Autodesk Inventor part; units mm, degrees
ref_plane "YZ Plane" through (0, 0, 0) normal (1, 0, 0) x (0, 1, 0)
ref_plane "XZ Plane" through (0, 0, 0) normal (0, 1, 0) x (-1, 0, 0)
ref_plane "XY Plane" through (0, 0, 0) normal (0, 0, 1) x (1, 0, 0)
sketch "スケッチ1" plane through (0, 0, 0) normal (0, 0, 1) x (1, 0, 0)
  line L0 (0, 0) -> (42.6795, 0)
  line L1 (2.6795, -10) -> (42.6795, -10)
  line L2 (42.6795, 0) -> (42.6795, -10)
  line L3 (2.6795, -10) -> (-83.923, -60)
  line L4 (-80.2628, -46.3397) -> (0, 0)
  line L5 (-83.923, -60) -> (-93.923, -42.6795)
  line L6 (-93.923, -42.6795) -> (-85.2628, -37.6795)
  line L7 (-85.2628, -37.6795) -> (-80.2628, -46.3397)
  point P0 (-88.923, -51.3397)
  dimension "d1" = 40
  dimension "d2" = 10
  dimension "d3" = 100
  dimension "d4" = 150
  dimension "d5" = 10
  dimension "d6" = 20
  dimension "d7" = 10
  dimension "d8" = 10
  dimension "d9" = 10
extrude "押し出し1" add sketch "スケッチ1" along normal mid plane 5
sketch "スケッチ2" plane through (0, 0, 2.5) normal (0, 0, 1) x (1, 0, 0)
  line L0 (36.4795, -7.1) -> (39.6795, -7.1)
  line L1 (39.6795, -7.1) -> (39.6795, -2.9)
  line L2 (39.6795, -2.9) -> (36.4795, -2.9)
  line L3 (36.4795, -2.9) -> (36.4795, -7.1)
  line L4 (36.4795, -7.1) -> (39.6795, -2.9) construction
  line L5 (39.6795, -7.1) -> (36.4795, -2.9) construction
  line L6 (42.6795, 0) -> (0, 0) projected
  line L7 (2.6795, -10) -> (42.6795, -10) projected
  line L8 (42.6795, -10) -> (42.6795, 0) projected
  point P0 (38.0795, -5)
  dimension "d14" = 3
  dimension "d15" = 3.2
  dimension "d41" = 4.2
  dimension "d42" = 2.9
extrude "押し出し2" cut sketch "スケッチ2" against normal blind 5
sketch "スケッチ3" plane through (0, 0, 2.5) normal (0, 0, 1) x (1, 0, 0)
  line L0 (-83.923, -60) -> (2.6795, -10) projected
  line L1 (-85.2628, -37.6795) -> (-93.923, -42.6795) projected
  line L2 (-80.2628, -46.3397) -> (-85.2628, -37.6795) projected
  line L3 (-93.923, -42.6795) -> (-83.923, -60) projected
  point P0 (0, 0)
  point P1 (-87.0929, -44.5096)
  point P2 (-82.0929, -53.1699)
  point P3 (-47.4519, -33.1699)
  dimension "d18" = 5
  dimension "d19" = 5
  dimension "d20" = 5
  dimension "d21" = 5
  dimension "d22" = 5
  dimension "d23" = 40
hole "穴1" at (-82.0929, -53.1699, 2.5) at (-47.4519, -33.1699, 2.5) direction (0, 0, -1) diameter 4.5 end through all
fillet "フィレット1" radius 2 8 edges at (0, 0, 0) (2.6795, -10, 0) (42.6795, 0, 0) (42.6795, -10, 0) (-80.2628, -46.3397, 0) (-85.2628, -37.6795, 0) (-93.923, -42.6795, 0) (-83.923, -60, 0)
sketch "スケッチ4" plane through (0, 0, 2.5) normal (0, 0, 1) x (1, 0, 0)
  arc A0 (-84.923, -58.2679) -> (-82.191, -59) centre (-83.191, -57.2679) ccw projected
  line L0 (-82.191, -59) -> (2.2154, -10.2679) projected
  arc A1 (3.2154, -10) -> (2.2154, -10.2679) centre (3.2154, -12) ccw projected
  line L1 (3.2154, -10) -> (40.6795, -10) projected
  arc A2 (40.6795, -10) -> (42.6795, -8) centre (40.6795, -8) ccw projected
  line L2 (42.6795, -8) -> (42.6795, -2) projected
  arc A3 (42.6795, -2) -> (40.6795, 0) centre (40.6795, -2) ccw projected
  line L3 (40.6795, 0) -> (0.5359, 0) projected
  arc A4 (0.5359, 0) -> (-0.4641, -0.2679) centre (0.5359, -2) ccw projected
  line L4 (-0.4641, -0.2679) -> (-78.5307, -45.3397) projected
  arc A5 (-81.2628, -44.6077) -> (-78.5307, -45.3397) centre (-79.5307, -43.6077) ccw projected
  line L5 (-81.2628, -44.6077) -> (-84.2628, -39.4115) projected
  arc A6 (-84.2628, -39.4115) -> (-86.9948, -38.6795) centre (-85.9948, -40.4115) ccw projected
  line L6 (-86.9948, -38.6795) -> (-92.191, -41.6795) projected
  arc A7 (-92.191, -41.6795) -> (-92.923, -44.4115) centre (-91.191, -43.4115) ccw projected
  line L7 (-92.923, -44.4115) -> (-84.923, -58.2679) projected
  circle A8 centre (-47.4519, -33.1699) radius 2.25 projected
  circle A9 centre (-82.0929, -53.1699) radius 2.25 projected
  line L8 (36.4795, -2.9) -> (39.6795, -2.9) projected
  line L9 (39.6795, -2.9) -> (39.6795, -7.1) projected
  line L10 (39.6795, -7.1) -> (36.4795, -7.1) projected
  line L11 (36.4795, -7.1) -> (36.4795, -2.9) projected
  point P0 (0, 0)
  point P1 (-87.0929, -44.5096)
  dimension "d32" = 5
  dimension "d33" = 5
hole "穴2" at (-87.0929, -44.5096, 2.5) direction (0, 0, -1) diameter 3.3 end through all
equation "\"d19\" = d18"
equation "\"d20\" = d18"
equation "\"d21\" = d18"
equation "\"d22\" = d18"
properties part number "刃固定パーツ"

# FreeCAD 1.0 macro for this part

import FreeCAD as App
import Part
import Sketcher

V = App.Vector
Q = App.Units.Quantity


def edges_at(feature, points):
    """Names of the edges that pass closest to the given points."""
    edges = feature.Shape.Edges
    near = lambda p: min(range(len(edges)), key=lambda i: edges[i].distToShape(Part.Vertex(*p))[0])
    return sorted({f"Edge{near(p) + 1}" for p in points})

doc = App.newDocument("Part")
body = doc.addObject("PartDesign::Body", "Body")

sketch1 = doc.addObject("Sketcher::SketchObject", "Sketch")
body.addObject(sketch1)
sketch1.AttachmentSupport = (doc.XY_Plane, [""])
sketch1.MapMode = "FlatFace"
sketch1.addGeometry([
    Part.LineSegment(V(43, 0, 0), V(0, 0, 0)),
    Part.LineSegment(V(0, 0, 0), V(-80, -46, 0)),
    Part.LineSegment(V(-80, -46, 0), V(-85, -38, 0)),
    Part.LineSegment(V(-85, -38, 0), V(-94, -43, 0)),
    Part.LineSegment(V(-94, -43, 0), V(-84, -60, 0)),
    Part.LineSegment(V(-84, -60, 0), V(3, -10, 0)),
    Part.LineSegment(V(3, -10, 0), V(43, -10, 0)),
    Part.LineSegment(V(43, -10, 0), V(43, 0, 0)),
], False)
sketch1.addConstraint([
    Sketcher.Constraint("Coincident", 0, 2, 1, 1),
    Sketcher.Constraint("Coincident", 1, 2, 2, 1),
    Sketcher.Constraint("Coincident", 2, 2, 3, 1),
    Sketcher.Constraint("Coincident", 3, 2, 4, 1),
    Sketcher.Constraint("Coincident", 4, 2, 5, 1),
    Sketcher.Constraint("Coincident", 5, 2, 6, 1),
    Sketcher.Constraint("Coincident", 6, 2, 7, 1),
    Sketcher.Constraint("Coincident", 7, 2, 0, 1),
    Sketcher.Constraint("Horizontal", 0),
    Sketcher.Constraint("Horizontal", 6),
    Sketcher.Constraint("Vertical", 7),
    Sketcher.Constraint("Coincident", 0, 2, -1, 1),
    Sketcher.Constraint("Perpendicular", 1, 2),
    Sketcher.Constraint("Perpendicular", 2, 3),
    Sketcher.Constraint("Perpendicular", 3, 4),
    Sketcher.Constraint("Perpendicular", 4, 5),
    Sketcher.Constraint("Equal", 2, 3),
    Sketcher.Constraint("DistanceX", 6, 1, 6, 2, 40.0),
    Sketcher.Constraint("DistanceY", 7, 1, 7, 2, 10.0),
    Sketcher.Constraint("Angle", 1, Q("-150 deg")),
    Sketcher.Constraint("Distance", 2, 10.0),
    Sketcher.Constraint("Distance", 4, 20.0),
    Sketcher.Constraint("Distance", 5, 100.0),
])
pad1 = doc.addObject("PartDesign::Pad", "Pad")
body.addObject(pad1)
pad1.Profile = sketch1
pad1.Length = 5
pad1.Midplane = True

sketch2 = doc.addObject("Sketcher::SketchObject", "Sketch001")
body.addObject(sketch2)
sketch2.AttachmentSupport = (doc.XY_Plane, [""])
sketch2.MapMode = "FlatFace"
sketch2.AttachmentOffset = App.Placement(V(0, 0, 2.5), App.Rotation())
sketch2.addGeometry([
    Part.LineSegment(V(36.5, -2.9, 0), V(36.5, -7.1, 0)),
    Part.LineSegment(V(36.5, -7.1, 0), V(39.7, -7.1, 0)),
    Part.LineSegment(V(39.7, -7.1, 0), V(39.7, -2.9, 0)),
    Part.LineSegment(V(39.7, -2.9, 0), V(36.5, -2.9, 0)),
], False)
sketch2.addConstraint([
    Sketcher.Constraint("Coincident", 0, 2, 1, 1),
    Sketcher.Constraint("Coincident", 1, 2, 2, 1),
    Sketcher.Constraint("Coincident", 2, 2, 3, 1),
    Sketcher.Constraint("Coincident", 3, 2, 0, 1),
    Sketcher.Constraint("Vertical", 0),
    Sketcher.Constraint("Horizontal", 1),
    Sketcher.Constraint("Vertical", 2),
    Sketcher.Constraint("Horizontal", 3),
    Sketcher.Constraint("DistanceX", 1, 1, 1, 2, 3.2),
    Sketcher.Constraint("DistanceY", 0, 2, 0, 1, 4.2),
    Sketcher.Constraint("DistanceY", 2, 2, -1, 1, 2.9),
    Sketcher.Constraint("DistanceX", -1, 1, 0, 2, 36.4795),
])
pocket1 = doc.addObject("PartDesign::Pocket", "Pocket")
body.addObject(pocket1)
pocket1.Profile = sketch2
pocket1.Length = 5

sketch3 = doc.addObject("Sketcher::SketchObject", "Sketch002")
body.addObject(sketch3)
sketch3.AttachmentSupport = (doc.XY_Plane, [""])
sketch3.MapMode = "FlatFace"
sketch3.AttachmentOffset = App.Placement(V(0, 0, 2.5), App.Rotation())
sketch3.addGeometry([
    Part.Circle(V(-82.1, -53.2, 0), V(0, 0, 1), 2.2),
    Part.Circle(V(-47.5, -33.2, 0), V(0, 0, 1), 2.2),
], False)
sketch3.addConstraint([
    Sketcher.Constraint("Equal", 0, 1),
    Sketcher.Constraint("Diameter", 0, 4.5),
    Sketcher.Constraint("DistanceY", 0, 3, 1, 3, 20.0),
    Sketcher.Constraint("DistanceY", 0, 3, -1, 1, 53.17),
    Sketcher.Constraint("DistanceX", 0, 3, -1, 1, 82.093),
    Sketcher.Constraint("DistanceX", 1, 3, -1, 1, 47.452),
])
doc.recompute()
hole = doc.addObject("PartDesign::Hole", "Hole")
body.addObject(hole)
hole.Profile = sketch3
hole.ThreadType = "None"
hole.Diameter = 4.5
hole.DepthType = "ThroughAll"
doc.recompute()

fillet = doc.addObject("PartDesign::Fillet", "Fillet")
body.addObject(fillet)
fillet.Base = (hole, edges_at(hole, [
    (0, 0, 0),
    (2.679, -10, 0),
    (42.679, 0, 0),
    (42.679, -10, 0),
    (-80.263, -46.34, 0),
    (-85.263, -37.679, 0),
    (-93.923, -42.679, 0),
    (-83.923, -60, 0),
]))
fillet.Radius = 2

sketch4 = doc.addObject("Sketcher::SketchObject", "Sketch003")
body.addObject(sketch4)
sketch4.AttachmentSupport = (doc.XY_Plane, [""])
sketch4.MapMode = "FlatFace"
sketch4.AttachmentOffset = App.Placement(V(0, 0, 2.5), App.Rotation())
sketch4.addGeometry(Part.Circle(V(-87.1, -44.5, 0), V(0, 0, 1), 1.6), False)
sketch4.addConstraint([
    Sketcher.Constraint("Diameter", 0, 3.3),
    Sketcher.Constraint("DistanceX", 0, 3, -1, 1, 87.093),
    Sketcher.Constraint("DistanceY", 0, 3, -1, 1, 44.5096),
])
doc.recompute()
hole2 = doc.addObject("PartDesign::Hole", "Hole001")
body.addObject(hole2)
hole2.Profile = sketch4
hole2.ThreadType = "None"
hole2.Diameter = 3.3
hole2.DepthType = "ThroughAll"

doc.recompute()
